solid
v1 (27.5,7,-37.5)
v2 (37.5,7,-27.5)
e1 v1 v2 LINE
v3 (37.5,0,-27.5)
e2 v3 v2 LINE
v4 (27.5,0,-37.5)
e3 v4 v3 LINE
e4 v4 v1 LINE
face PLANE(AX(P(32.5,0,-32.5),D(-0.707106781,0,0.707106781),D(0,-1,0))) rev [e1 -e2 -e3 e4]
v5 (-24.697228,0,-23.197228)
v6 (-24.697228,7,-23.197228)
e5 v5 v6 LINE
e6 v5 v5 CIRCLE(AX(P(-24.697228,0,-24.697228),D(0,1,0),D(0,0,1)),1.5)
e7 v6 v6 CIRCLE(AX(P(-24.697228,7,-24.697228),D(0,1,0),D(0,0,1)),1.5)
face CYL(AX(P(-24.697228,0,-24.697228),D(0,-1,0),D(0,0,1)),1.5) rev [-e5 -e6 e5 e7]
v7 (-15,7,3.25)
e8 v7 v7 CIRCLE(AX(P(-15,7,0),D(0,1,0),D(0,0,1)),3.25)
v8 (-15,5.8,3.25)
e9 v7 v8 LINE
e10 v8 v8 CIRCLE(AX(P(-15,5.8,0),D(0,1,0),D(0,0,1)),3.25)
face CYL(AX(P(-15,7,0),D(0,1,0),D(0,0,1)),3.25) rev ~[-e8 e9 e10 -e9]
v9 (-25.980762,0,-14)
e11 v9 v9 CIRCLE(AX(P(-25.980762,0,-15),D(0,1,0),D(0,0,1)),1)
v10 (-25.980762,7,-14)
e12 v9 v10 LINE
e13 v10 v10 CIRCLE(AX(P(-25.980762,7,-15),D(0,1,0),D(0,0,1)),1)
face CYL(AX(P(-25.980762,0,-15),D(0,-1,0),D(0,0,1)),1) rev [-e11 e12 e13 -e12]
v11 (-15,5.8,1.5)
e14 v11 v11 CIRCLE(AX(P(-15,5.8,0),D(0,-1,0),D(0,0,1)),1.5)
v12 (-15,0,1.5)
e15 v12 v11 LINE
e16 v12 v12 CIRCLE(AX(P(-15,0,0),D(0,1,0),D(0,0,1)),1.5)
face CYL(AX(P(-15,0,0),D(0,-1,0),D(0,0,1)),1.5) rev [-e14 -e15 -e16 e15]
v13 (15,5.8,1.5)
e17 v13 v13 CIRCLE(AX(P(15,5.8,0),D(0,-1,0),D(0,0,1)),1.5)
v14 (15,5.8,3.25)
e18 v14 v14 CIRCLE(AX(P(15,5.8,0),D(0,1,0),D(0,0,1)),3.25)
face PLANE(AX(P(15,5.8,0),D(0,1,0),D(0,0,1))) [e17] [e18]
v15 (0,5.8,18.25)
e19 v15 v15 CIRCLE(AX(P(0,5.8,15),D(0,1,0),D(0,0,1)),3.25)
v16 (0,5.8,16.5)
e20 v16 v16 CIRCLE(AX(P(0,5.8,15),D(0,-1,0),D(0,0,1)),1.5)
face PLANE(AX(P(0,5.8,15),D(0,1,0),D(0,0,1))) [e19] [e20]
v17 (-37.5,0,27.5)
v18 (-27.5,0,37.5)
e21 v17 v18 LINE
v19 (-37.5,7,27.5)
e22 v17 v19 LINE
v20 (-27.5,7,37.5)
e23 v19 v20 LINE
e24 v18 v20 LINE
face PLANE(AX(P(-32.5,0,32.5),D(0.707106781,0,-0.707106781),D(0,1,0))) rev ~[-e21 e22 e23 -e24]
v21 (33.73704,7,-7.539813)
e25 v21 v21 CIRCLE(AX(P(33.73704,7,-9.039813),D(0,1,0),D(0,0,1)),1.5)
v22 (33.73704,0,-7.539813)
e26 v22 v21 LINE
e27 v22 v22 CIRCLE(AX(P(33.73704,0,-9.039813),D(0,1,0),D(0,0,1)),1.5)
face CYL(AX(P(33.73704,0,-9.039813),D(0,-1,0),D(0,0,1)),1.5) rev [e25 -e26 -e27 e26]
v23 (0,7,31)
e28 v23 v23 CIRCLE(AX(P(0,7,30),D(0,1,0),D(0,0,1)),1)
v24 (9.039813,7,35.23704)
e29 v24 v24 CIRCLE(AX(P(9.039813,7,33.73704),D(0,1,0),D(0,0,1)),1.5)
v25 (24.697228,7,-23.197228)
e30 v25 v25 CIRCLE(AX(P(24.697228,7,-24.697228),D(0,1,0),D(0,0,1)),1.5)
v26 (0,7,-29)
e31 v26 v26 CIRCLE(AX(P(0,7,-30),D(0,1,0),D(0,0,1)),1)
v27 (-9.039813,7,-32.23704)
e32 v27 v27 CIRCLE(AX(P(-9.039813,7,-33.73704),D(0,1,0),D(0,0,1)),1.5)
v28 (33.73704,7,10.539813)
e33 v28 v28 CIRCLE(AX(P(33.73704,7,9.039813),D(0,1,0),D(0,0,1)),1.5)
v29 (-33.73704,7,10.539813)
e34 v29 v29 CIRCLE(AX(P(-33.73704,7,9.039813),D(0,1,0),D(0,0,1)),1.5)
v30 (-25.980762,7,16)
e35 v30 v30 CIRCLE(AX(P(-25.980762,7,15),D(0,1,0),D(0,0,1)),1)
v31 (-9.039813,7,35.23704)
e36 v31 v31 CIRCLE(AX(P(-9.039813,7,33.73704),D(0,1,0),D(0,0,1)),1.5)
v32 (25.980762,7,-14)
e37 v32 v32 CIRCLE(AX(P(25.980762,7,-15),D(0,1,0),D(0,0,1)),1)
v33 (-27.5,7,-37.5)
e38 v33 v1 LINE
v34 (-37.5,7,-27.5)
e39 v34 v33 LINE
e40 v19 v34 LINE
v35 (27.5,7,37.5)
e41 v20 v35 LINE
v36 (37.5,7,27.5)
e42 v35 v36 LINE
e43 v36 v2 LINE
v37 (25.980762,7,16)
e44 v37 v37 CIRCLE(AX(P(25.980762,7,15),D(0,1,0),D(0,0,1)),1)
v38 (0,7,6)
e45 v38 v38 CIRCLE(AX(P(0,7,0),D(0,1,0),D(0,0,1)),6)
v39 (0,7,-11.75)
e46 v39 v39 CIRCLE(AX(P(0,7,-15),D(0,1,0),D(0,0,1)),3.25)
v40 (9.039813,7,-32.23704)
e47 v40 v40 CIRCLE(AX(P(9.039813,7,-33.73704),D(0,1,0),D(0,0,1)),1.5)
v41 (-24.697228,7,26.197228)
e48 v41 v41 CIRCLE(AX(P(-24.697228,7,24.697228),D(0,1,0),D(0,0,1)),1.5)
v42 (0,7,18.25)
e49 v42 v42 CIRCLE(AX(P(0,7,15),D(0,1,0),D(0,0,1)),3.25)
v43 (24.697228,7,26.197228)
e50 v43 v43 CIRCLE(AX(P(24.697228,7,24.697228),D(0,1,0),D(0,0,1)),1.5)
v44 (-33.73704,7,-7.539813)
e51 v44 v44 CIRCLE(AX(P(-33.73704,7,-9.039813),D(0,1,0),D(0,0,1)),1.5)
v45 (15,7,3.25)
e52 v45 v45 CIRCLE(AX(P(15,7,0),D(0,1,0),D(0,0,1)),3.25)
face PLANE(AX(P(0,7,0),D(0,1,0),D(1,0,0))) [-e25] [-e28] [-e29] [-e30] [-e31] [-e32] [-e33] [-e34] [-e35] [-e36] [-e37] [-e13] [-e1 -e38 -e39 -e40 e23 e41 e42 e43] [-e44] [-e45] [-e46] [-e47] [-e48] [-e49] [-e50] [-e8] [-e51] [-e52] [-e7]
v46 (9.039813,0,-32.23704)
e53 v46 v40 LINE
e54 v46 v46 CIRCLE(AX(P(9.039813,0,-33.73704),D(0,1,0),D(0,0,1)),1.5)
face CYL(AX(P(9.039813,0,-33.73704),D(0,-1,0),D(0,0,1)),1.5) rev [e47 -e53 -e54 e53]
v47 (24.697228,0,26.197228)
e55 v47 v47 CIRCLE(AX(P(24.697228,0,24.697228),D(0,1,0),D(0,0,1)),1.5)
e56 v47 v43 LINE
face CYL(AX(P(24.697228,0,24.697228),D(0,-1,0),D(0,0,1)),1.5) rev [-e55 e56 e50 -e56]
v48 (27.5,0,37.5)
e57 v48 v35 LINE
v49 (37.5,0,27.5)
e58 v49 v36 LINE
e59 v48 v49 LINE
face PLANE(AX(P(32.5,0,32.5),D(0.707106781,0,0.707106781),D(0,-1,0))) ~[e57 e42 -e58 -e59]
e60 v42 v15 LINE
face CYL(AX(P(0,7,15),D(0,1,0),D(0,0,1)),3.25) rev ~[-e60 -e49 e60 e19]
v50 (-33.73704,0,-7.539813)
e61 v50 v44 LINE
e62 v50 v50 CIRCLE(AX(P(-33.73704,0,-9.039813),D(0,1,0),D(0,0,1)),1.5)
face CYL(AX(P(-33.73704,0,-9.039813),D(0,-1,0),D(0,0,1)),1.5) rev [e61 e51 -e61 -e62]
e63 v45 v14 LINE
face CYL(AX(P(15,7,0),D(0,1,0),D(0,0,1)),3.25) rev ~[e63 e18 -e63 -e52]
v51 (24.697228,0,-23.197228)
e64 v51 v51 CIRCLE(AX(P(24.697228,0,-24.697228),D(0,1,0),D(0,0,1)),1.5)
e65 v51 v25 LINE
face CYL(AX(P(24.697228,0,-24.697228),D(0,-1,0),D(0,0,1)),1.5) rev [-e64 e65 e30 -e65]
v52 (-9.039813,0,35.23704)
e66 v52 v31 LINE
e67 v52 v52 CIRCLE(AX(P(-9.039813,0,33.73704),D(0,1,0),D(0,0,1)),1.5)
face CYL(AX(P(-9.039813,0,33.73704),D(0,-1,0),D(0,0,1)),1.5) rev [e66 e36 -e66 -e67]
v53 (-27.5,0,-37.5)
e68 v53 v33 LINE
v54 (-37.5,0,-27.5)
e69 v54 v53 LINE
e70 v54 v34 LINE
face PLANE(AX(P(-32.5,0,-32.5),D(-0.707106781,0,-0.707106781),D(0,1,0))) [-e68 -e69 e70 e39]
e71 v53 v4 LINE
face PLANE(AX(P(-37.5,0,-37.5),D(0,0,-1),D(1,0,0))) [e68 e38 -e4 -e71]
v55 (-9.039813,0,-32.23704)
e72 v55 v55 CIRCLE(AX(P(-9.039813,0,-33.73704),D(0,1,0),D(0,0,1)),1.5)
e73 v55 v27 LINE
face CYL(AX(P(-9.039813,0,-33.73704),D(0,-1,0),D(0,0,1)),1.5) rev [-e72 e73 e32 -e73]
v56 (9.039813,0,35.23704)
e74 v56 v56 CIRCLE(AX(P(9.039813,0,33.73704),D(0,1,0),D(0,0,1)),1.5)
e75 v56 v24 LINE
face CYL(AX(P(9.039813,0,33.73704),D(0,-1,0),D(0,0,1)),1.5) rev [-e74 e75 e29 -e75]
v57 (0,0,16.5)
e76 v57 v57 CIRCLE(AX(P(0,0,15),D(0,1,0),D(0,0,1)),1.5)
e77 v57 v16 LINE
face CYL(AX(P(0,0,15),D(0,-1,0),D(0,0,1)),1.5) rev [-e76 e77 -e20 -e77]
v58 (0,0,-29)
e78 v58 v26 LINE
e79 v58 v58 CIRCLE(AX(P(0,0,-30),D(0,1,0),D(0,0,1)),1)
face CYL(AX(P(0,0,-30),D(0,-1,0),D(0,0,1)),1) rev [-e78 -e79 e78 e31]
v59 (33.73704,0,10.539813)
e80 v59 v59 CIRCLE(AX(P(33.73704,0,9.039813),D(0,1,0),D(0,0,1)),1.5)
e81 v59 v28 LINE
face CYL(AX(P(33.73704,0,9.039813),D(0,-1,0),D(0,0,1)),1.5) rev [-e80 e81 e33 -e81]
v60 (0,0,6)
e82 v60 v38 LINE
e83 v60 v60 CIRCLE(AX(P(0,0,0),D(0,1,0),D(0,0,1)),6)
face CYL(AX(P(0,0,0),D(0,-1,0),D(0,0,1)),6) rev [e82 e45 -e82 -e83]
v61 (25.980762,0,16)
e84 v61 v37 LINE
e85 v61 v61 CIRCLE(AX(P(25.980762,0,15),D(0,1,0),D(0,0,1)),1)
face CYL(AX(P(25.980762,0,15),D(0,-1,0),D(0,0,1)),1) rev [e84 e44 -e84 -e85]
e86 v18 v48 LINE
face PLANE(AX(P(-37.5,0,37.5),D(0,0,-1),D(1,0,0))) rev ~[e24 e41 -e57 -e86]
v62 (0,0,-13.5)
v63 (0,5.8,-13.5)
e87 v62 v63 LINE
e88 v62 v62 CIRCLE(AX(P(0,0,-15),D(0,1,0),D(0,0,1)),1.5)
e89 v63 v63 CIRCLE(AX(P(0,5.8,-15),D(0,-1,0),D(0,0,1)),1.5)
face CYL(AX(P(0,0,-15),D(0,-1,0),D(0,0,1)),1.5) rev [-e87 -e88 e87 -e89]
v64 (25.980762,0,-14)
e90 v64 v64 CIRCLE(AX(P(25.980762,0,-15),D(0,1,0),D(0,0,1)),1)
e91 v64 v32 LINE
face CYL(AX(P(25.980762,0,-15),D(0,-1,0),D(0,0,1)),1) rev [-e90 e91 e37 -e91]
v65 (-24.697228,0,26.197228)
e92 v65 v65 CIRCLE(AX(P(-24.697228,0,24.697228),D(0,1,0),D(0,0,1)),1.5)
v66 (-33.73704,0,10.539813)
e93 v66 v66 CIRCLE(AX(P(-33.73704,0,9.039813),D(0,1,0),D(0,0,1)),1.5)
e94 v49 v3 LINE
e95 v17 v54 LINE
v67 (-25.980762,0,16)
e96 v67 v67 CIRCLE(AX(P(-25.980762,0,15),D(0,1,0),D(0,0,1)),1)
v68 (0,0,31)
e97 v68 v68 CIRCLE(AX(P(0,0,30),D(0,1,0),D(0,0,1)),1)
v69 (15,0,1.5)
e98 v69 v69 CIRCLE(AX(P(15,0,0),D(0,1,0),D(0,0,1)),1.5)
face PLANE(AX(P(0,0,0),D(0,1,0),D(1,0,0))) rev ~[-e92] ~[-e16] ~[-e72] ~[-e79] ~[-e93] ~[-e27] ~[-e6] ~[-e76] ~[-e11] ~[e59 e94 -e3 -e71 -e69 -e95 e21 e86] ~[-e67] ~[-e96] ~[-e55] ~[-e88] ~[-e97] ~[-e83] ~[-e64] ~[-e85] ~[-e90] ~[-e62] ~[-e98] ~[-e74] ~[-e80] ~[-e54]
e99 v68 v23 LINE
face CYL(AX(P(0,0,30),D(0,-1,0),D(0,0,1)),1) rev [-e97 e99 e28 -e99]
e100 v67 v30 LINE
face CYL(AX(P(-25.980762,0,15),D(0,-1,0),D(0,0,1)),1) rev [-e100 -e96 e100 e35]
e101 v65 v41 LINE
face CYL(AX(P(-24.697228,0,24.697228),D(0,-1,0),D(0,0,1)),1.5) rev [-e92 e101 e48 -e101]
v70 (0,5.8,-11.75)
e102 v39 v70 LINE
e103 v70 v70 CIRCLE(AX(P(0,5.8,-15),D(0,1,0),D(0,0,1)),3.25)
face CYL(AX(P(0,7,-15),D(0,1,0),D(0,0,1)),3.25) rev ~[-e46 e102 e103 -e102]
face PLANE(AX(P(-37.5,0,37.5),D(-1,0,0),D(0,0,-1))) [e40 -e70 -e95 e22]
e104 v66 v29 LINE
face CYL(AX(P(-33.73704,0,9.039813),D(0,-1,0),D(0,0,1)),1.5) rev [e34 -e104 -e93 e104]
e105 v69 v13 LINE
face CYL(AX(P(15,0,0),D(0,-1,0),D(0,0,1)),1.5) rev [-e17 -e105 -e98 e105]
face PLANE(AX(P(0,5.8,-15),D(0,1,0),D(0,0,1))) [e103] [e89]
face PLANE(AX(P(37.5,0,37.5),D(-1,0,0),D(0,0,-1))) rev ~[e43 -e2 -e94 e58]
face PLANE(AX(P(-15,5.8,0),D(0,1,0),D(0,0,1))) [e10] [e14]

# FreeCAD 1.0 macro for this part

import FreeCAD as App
import Part
import Sketcher
from FreeCAD import Vector


def edges_at(feature, points):
    """Names of the edges that pass closest to the given points."""
    edges = feature.Shape.Edges
    near = lambda p: min(range(len(edges)), key=lambda i: edges[i].distToShape(Part.Vertex(*p))[0])
    return sorted({f"Edge{near(p) + 1}" for p in points})

doc = App.newDocument("Part")
body = doc.addObject("PartDesign::Body", "Body")

sketch1 = doc.addObject("Sketcher::SketchObject", "Sketch")
body.addObject(sketch1)
sketch1.AttachmentSupport = (doc.XZ_Plane, [""])
sketch1.MapMode = "FlatFace"
sketch1.addGeometry([
    Part.LineSegment(Vector(-37.5, -37.5, 0), Vector(-37.5, 37.5, 0)),
    Part.LineSegment(Vector(-37.5, 37.5, 0), Vector(37.5, 37.5, 0)),
    Part.LineSegment(Vector(37.5, 37.5, 0), Vector(37.5, -37.5, 0)),
    Part.LineSegment(Vector(37.5, -37.5, 0), Vector(-37.5, -37.5, 0)),
    Part.Circle(Vector(-24.7, 24.7, 0), Vector(0, 0, 1), 1.5),
    Part.Circle(Vector(-9, 33.7, 0), Vector(0, 0, 1), 1.5),
    Part.Circle(Vector(-33.7, 9, 0), Vector(0, 0, 1), 1.5),
    Part.Circle(Vector(-26, 15, 0), Vector(0, 0, 1), 1),
    Part.Circle(Vector(0, 30, 0), Vector(0, 0, 1), 1),
    Part.Circle(Vector(9, 33.7, 0), Vector(0, 0, 1), 1.5),
    Part.Circle(Vector(24.7, 24.7, 0), Vector(0, 0, 1), 1.5),
    Part.Circle(Vector(0, 15, 0), Vector(0, 0, 1), 1.5),
    Part.Circle(Vector(26, 15, 0), Vector(0, 0, 1), 1),
    Part.Circle(Vector(33.7, 9, 0), Vector(0, 0, 1), 1.5),
    Part.Circle(Vector(-33.7, -9, 0), Vector(0, 0, 1), 1.5),
    Part.Circle(Vector(-26, -15, 0), Vector(0, 0, 1), 1),
    Part.Circle(Vector(-15, 0, 0), Vector(0, 0, 1), 1.5),
    Part.Circle(Vector(-24.7, -24.7, 0), Vector(0, 0, 1), 1.5),
    Part.Circle(Vector(-9, -33.7, 0), Vector(0, 0, 1), 1.5),
    Part.Circle(Vector(0, 0, 0), Vector(0, 0, 1), 6),
    Part.Circle(Vector(15, 0, 0), Vector(0, 0, 1), 1.5),
    Part.Circle(Vector(0, -15, 0), Vector(0, 0, 1), 1.5),
    Part.Circle(Vector(26, -15, 0), Vector(0, 0, 1), 1),
    Part.Circle(Vector(33.7, -9, 0), Vector(0, 0, 1), 1.5),
    Part.Circle(Vector(0, -30, 0), Vector(0, 0, 1), 1),
    Part.Circle(Vector(9, -33.7, 0), Vector(0, 0, 1), 1.5),
    Part.Circle(Vector(24.7, -24.7, 0), Vector(0, 0, 1), 1.5),
], False)
sketch1.addConstraint([
    Sketcher.Constraint("Coincident", 0, 2, 1, 1),
    Sketcher.Constraint("Coincident", 1, 2, 2, 1),
    Sketcher.Constraint("Coincident", 2, 2, 3, 1),
    Sketcher.Constraint("Coincident", 3, 2, 0, 1),
    Sketcher.Constraint("Vertical", 0),
    Sketcher.Constraint("Horizontal", 1),
    Sketcher.Constraint("Vertical", 2),
    Sketcher.Constraint("Horizontal", 3),
    Sketcher.Constraint("Coincident", 19, 3, -1, 1),
    Sketcher.Constraint("Equal", 4, 5),
    Sketcher.Constraint("Equal", 5, 6),
    Sketcher.Constraint("Equal", 7, 8),
    Sketcher.Constraint("Equal", 6, 9),
    Sketcher.Constraint("Equal", 9, 10),
    Sketcher.Constraint("Equal", 10, 11),
    Sketcher.Constraint("Equal", 8, 12),
    Sketcher.Constraint("Equal", 11, 13),
    Sketcher.Constraint("Equal", 13, 14),
    Sketcher.Constraint("Equal", 12, 15),
    Sketcher.Constraint("Equal", 14, 16),
    Sketcher.Constraint("Equal", 16, 17),
    Sketcher.Constraint("Equal", 17, 18),
    Sketcher.Constraint("Equal", 18, 20),
    Sketcher.Constraint("Equal", 20, 21),
    Sketcher.Constraint("Equal", 15, 22),
    Sketcher.Constraint("Equal", 21, 23),
    Sketcher.Constraint("Equal", 22, 24),
    Sketcher.Constraint("Equal", 23, 25),
    Sketcher.Constraint("Equal", 25, 26),
    Sketcher.Constraint("Symmetric", 13, 3, 14, 3, -1, 1),
    Sketcher.Constraint("Symmetric", 12, 3, 15, 3, -1, 1),
    Sketcher.Constraint("Symmetric", 10, 3, 17, 3, -1, 1),
    Sketcher.Constraint("Symmetric", 9, 3, 18, 3, -1, 1),
    Sketcher.Constraint("Symmetric", 16, 3, 20, 3, -1, 1),
    Sketcher.Constraint("Symmetric", 11, 3, 21, 3, -1, 1),
    Sketcher.Constraint("Symmetric", 7, 3, 22, 3, -1, 1),
    Sketcher.Constraint("Symmetric", 6, 3, 23, 3, -1, 1),
    Sketcher.Constraint("Symmetric", 8, 3, 24, 3, -1, 1),
    Sketcher.Constraint("Symmetric", 5, 3, 25, 3, -1, 1),
    Sketcher.Constraint("Symmetric", 4, 3, 26, 3, -1, 1),
    Sketcher.Constraint("Symmetric", 0, 2, 2, 2, -1, 1),
    Sketcher.Constraint("Symmetric", 5, 3, 9, 3, -2),
    Sketcher.Constraint("Symmetric", 4, 3, 10, 3, -2),
    Sketcher.Constraint("Symmetric", 7, 3, 12, 3, -2),
    Sketcher.Constraint("Symmetric", 6, 3, 13, 3, -2),
    Sketcher.Constraint("PointOnObject", 8, 3, -2),
    Sketcher.Constraint("PointOnObject", 11, 3, -2),
    Sketcher.Constraint("PointOnObject", 16, 3, -1),
    Sketcher.Constraint("Horizontal", 7, 3, 11, 3),
    Sketcher.Constraint("Equal", 3, 0),
    Sketcher.Constraint("Diameter", 4, 3.0),
    Sketcher.Constraint("Diameter", 7, 2.0),
    Sketcher.Constraint("Diameter", 19, 12.0),
    Sketcher.Constraint("DistanceX", 1, 1, 1, 2, 75.0),
    Sketcher.Constraint("DistanceY", -1, 1, 7, 3, 15.0),
    Sketcher.Constraint("DistanceY", -1, 1, 8, 3, 30.0),
    Sketcher.Constraint("DistanceX", 16, 3, -1, 1, 15.0),
    Sketcher.Constraint("DistanceY", -1, 1, 5, 3, 33.73704),
    Sketcher.Constraint("DistanceX", 6, 3, -1, 1, 33.73704),
    Sketcher.Constraint("DistanceX", 6, 3, 7, 3, 7.756278),
    Sketcher.Constraint("DistanceX", 7, 3, 5, 3, 16.940949),
    Sketcher.Constraint("DistanceX", 4, 3, 9, 3, 33.73704),
    Sketcher.Constraint("DistanceY", 14, 3, 4, 3, 33.73704),
    Sketcher.Constraint("DistanceY", -1, 1, 4, 3, 24.697228),
])
pad1 = doc.addObject("PartDesign::Pad", "Pad")
body.addObject(pad1)
pad1.Profile = sketch1
pad1.Length = 7
pad1.Reversed = True

sketch2 = doc.addObject("Sketcher::SketchObject", "Sketch001")
body.addObject(sketch2)
sketch2.AttachmentSupport = (doc.XZ_Plane, [""])
sketch2.MapMode = "FlatFace"
sketch2.AttachmentOffset = App.Placement(Vector(0, 0, -7), App.Rotation())
sketch2.addGeometry([
    Part.Circle(Vector(0, -15, 0), Vector(0, 0, 1), 3.2),
    Part.Circle(Vector(15, 0, 0), Vector(0, 0, 1), 3.2),
    Part.Circle(Vector(0, 15, 0), Vector(0, 0, 1), 3.2),
    Part.Circle(Vector(-15, 0, 0), Vector(0, 0, 1), 3.2),
], False)
sketch2.addConstraint([
    Sketcher.Constraint("Equal", 0, 1),
    Sketcher.Constraint("Equal", 1, 2),
    Sketcher.Constraint("Equal", 2, 3),
    Sketcher.Constraint("Symmetric", 0, 3, 2, 3, -1, 1),
    Sketcher.Constraint("Symmetric", 1, 3, 3, 3, -1, 1),
    Sketcher.Constraint("PointOnObject", 0, 3, -2),
    Sketcher.Constraint("PointOnObject", 1, 3, -1),
    Sketcher.Constraint("Diameter", 0, 6.5),
    Sketcher.Constraint("DistanceY", 0, 3, -1, 1, 15.0),
    Sketcher.Constraint("DistanceX", -1, 1, 1, 3, 15.0),
])
pocket1 = doc.addObject("PartDesign::Pocket", "Pocket")
body.addObject(pocket1)
pocket1.Profile = sketch2
pocket1.Length = 1.2
pocket1.Reversed = True
doc.recompute()

chamfer = doc.addObject("PartDesign::Chamfer", "Chamfer")
body.addObject(chamfer)
chamfer.Base = (pocket1, edges_at(pocket1, [
    (-37.5, 3.5, -37.5),
    (37.5, 3.5, -37.5),
    (37.5, 3.5, 37.5),
    (-37.5, 3.5, 37.5),
]))
chamfer.Size = 10

doc.recompute()
